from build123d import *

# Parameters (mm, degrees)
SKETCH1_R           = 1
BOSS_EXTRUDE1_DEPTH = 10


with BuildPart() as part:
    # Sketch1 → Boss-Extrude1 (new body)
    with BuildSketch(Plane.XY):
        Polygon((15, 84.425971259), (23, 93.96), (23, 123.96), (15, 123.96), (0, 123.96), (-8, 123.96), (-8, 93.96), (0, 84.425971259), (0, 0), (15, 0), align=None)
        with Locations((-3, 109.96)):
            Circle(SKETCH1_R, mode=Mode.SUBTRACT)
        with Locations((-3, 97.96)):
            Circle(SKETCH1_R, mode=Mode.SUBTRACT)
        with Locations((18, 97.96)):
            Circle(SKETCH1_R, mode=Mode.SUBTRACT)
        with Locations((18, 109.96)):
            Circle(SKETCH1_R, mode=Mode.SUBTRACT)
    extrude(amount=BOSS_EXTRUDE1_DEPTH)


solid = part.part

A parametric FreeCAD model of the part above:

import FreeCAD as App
import Part
import Sketcher
from FreeCAD import Vector
Q = App.Units.Quantity

doc = App.newDocument("Part")
body = doc.addObject("PartDesign::Body", "Body")

# Sketch on XY plane
sketch1 = body.newObject("Sketcher::SketchObject", "Sketch")
sketch1.AttachmentSupport = (doc.getObject("XY_Plane"), [""])
sketch1.MapMode = "FlatFace"
sketch1.addGeometry([
    Part.LineSegment(Vector(15, 84.425971, 0), Vector(23, 93.96, 0)),  # 0
    Part.LineSegment(Vector(23, 93.96, 0), Vector(23, 123.96, 0)),  # 1
    Part.LineSegment(Vector(23, 123.96, 0), Vector(-8, 123.96, 0)),  # 2
    Part.LineSegment(Vector(-8, 123.96, 0), Vector(-8, 93.96, 0)),  # 3
    Part.LineSegment(Vector(-8, 93.96, 0), Vector(0, 84.425971, 0)),  # 4
    Part.LineSegment(Vector(0, 84.425971, 0), Vector(0, 0, 0)),  # 5
    Part.LineSegment(Vector(0, 0, 0), Vector(15, 0, 0)),  # 6
    Part.LineSegment(Vector(15, 0, 0), Vector(15, 84.425971, 0)),  # 7
    Part.Circle(Vector(-3, 97.96, 0), Vector(0, 0, 1), 1),  # 8
    Part.Circle(Vector(18, 97.96, 0), Vector(0, 0, 1), 1),  # 9
    Part.Circle(Vector(-3, 109.96, 0), Vector(0, 0, 1), 1),  # 10
    Part.Circle(Vector(18, 109.96, 0), Vector(0, 0, 1), 1),  # 11
], False)
sketch1.addConstraint([
    Sketcher.Constraint("Coincident", 0, 2, 1, 1),
    Sketcher.Constraint("Coincident", 1, 2, 2, 1),
    Sketcher.Constraint("Coincident", 2, 2, 3, 1),
    Sketcher.Constraint("Coincident", 3, 2, 4, 1),
    Sketcher.Constraint("Coincident", 4, 2, 5, 1),
    Sketcher.Constraint("Coincident", 5, 2, 6, 1),
    Sketcher.Constraint("Coincident", 6, 2, 7, 1),
    Sketcher.Constraint("Coincident", 7, 2, 0, 1),
    Sketcher.Constraint("Vertical", 1),
    Sketcher.Constraint("Horizontal", 2),
    Sketcher.Constraint("Vertical", 3),
    Sketcher.Constraint("Vertical", 5),
    Sketcher.Constraint("Horizontal", 6),
    Sketcher.Constraint("Vertical", 7),
    Sketcher.Constraint("Coincident", 5, 2, -1, 1),
    Sketcher.Constraint("Equal", 8, 9),
    Sketcher.Constraint("Equal", 9, 10),
    Sketcher.Constraint("Equal", 10, 11),
    Sketcher.Constraint("Horizontal", 8, 3, 9, 3),
    Sketcher.Constraint("Horizontal", 10, 3, 11, 3),
    Sketcher.Constraint("Horizontal", 0, 2, 3, 2),
    Sketcher.Constraint("Horizontal", 4, 2, 7, 2),
    Sketcher.Constraint("Vertical", 8, 3, 10, 3),
    Sketcher.Constraint("Vertical", 9, 3, 11, 3),
    Sketcher.Constraint("Equal", 0, 4),
    Sketcher.Constraint("Diameter", 8, 2.0),
    Sketcher.Constraint("DistanceX", 2, 2, 2, 1, 31.0),
    Sketcher.Constraint("DistanceX", 6, 1, 6, 2, 15.0),
    Sketcher.Constraint("DistanceY", 1, 1, 1, 2, 30.0),
    Sketcher.Constraint("Angle", 0, Q("50 deg")),
    Sketcher.Constraint("DistanceX", 8, 3, -1, 1, 3.0),
    Sketcher.Constraint("DistanceX", -1, 1, 9, 3, 18.0),
    Sketcher.Constraint("DistanceY", 8, 3, 10, 3, 12.0),
    Sketcher.Constraint("DistanceY", 0, 2, 9, 3, 4.0),
    Sketcher.Constraint("DistanceY", -1, 1, 8, 3, 97.96),
])
pad1 = body.newObject("PartDesign::Pad", "Pad")
pad1.Profile = sketch1
pad1.Length = 10

doc.recompute()
